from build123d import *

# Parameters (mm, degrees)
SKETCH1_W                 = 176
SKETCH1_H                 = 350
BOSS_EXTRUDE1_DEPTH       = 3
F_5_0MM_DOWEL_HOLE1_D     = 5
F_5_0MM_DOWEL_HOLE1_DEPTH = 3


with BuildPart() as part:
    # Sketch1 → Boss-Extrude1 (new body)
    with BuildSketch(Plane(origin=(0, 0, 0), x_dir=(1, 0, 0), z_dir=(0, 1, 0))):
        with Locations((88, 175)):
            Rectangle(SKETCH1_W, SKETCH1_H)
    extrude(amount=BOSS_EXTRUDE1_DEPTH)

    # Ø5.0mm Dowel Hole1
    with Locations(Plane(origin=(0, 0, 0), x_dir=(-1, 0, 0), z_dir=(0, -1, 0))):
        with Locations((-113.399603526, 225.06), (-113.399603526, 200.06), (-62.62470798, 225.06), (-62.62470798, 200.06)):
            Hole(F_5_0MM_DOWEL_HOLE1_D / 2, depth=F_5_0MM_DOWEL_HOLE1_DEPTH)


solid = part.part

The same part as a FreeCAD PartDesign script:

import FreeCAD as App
import Part
import Sketcher
from FreeCAD import Vector
Q = App.Units.Quantity

doc = App.newDocument("Part")
params = doc.addObject("Spreadsheet::Sheet", "Params")
for row, (alias, value) in enumerate([
    ("sketch1_width", "176 mm"),
    ("sketch1_height", "350 mm"),
    ("pad1_length", "3 mm"),
    ("sketch2_diameter", "5 mm"),
    ("hole_diameter", "5 mm"),
    ("hole_depth", "3 mm"),
], start=1):
    params.set(f"A{row}", alias)
    params.set(f"B{row}", "=" + value)
    params.setAlias(f"B{row}", alias)

body = doc.addObject("PartDesign::Body", "Body")

# Sketch on XZ plane
sketch1 = doc.addObject("Sketcher::SketchObject", "Sketch")
body.addObject(sketch1)
sketch1.AttachmentSupport = (doc.XZ_Plane, [""])
sketch1.MapMode = "FlatFace"
sketch1.addGeometry(Part.LineSegment(Vector(0, -350, 0), Vector(0, 0, 0)), False)
sketch1.addGeometry(Part.LineSegment(Vector(0, 0, 0), Vector(176, 0, 0)), False)
sketch1.addGeometry(Part.LineSegment(Vector(176, 0, 0), Vector(176, -350, 0)), False)
sketch1.addGeometry(Part.LineSegment(Vector(176, -350, 0), Vector(0, -350, 0)), False)
sketch1.addConstraint(Sketcher.Constraint("Coincident", 0, 2, 1, 1))
sketch1.addConstraint(Sketcher.Constraint("Coincident", 1, 2, 2, 1))
sketch1.addConstraint(Sketcher.Constraint("Coincident", 2, 2, 3, 1))
sketch1.addConstraint(Sketcher.Constraint("Coincident", 3, 2, 0, 1))
sketch1.addConstraint(Sketcher.Constraint("Vertical", 0))
sketch1.addConstraint(Sketcher.Constraint("Horizontal", 1))
sketch1.addConstraint(Sketcher.Constraint("Vertical", 2))
sketch1.addConstraint(Sketcher.Constraint("Horizontal", 3))
sketch1.addConstraint(Sketcher.Constraint("Coincident", 0, 2, -1, 1))
sketch1.addConstraint(Sketcher.Constraint("DistanceX", 1, 1, 1, 2, Q("176 mm")))
sketch1.addConstraint(Sketcher.Constraint("DistanceY", 0, 1, 0, 2, Q("350 mm")))
sketch1.setExpression("Constraints[9]", "Params.sketch1_width")
sketch1.setExpression("Constraints[10]", "Params.sketch1_height")
pad1 = doc.addObject("PartDesign::Pad", "Pad")
body.addObject(pad1)
pad1.Profile = sketch1
pad1.setExpression("Length", "Params.pad1_length")
pad1.Reversed = True

# Sketch on XZ plane
sketch2 = doc.addObject("Sketcher::SketchObject", "Sketch001")
body.addObject(sketch2)
sketch2.AttachmentSupport = (doc.XZ_Plane, [""])
sketch2.MapMode = "FlatFace"
sketch2.addGeometry(Part.Circle(Vector(113.4, -225.1, 0), Vector(0, 0, 1), 2.5), False)
sketch2.addGeometry(Part.Circle(Vector(113.4, -200.1, 0), Vector(0, 0, 1), 2.5), False)
sketch2.addGeometry(Part.Circle(Vector(62.6, -225.1, 0), Vector(0, 0, 1), 2.5), False)
sketch2.addGeometry(Part.Circle(Vector(62.6, -200.1, 0), Vector(0, 0, 1), 2.5), False)
sketch2.addConstraint(Sketcher.Constraint("Equal", 0, 1))
sketch2.addConstraint(Sketcher.Constraint("Equal", 1, 2))
sketch2.addConstraint(Sketcher.Constraint("Equal", 2, 3))
sketch2.addConstraint(Sketcher.Constraint("Horizontal", 0, 3, 2, 3))
sketch2.addConstraint(Sketcher.Constraint("Horizontal", 1, 3, 3, 3))
sketch2.addConstraint(Sketcher.Constraint("Vertical", 0, 3, 1, 3))
sketch2.addConstraint(Sketcher.Constraint("Vertical", 2, 3, 3, 3))
sketch2.addConstraint(Sketcher.Constraint("Diameter", 0, Q("5 mm")))
sketch2.addConstraint(Sketcher.Constraint("DistanceY", 0, 3, 1, 3, Q("25 mm")))
sketch2.addConstraint(Sketcher.Constraint("DistanceY", 0, 3, -1, 1, Q("225.06 mm")))
sketch2.addConstraint(Sketcher.Constraint("DistanceX", -1, 1, 0, 3, Q("113.399604 mm")))
sketch2.addConstraint(Sketcher.Constraint("DistanceX", -1, 1, 2, 3, Q("62.624708 mm")))
sketch2.setExpression("Constraints[7]", "Params.sketch2_diameter")
doc.recompute()
hole = doc.addObject("PartDesign::Hole", "Hole")
body.addObject(hole)
hole.Profile = sketch2
hole.ThreadType = "None"
hole.setExpression("Diameter", "Params.hole_diameter")
hole.DepthType = "Dimension"
hole.setExpression("Depth", "Params.hole_depth")
hole.DrillPoint = "Flat"

doc.recompute()
